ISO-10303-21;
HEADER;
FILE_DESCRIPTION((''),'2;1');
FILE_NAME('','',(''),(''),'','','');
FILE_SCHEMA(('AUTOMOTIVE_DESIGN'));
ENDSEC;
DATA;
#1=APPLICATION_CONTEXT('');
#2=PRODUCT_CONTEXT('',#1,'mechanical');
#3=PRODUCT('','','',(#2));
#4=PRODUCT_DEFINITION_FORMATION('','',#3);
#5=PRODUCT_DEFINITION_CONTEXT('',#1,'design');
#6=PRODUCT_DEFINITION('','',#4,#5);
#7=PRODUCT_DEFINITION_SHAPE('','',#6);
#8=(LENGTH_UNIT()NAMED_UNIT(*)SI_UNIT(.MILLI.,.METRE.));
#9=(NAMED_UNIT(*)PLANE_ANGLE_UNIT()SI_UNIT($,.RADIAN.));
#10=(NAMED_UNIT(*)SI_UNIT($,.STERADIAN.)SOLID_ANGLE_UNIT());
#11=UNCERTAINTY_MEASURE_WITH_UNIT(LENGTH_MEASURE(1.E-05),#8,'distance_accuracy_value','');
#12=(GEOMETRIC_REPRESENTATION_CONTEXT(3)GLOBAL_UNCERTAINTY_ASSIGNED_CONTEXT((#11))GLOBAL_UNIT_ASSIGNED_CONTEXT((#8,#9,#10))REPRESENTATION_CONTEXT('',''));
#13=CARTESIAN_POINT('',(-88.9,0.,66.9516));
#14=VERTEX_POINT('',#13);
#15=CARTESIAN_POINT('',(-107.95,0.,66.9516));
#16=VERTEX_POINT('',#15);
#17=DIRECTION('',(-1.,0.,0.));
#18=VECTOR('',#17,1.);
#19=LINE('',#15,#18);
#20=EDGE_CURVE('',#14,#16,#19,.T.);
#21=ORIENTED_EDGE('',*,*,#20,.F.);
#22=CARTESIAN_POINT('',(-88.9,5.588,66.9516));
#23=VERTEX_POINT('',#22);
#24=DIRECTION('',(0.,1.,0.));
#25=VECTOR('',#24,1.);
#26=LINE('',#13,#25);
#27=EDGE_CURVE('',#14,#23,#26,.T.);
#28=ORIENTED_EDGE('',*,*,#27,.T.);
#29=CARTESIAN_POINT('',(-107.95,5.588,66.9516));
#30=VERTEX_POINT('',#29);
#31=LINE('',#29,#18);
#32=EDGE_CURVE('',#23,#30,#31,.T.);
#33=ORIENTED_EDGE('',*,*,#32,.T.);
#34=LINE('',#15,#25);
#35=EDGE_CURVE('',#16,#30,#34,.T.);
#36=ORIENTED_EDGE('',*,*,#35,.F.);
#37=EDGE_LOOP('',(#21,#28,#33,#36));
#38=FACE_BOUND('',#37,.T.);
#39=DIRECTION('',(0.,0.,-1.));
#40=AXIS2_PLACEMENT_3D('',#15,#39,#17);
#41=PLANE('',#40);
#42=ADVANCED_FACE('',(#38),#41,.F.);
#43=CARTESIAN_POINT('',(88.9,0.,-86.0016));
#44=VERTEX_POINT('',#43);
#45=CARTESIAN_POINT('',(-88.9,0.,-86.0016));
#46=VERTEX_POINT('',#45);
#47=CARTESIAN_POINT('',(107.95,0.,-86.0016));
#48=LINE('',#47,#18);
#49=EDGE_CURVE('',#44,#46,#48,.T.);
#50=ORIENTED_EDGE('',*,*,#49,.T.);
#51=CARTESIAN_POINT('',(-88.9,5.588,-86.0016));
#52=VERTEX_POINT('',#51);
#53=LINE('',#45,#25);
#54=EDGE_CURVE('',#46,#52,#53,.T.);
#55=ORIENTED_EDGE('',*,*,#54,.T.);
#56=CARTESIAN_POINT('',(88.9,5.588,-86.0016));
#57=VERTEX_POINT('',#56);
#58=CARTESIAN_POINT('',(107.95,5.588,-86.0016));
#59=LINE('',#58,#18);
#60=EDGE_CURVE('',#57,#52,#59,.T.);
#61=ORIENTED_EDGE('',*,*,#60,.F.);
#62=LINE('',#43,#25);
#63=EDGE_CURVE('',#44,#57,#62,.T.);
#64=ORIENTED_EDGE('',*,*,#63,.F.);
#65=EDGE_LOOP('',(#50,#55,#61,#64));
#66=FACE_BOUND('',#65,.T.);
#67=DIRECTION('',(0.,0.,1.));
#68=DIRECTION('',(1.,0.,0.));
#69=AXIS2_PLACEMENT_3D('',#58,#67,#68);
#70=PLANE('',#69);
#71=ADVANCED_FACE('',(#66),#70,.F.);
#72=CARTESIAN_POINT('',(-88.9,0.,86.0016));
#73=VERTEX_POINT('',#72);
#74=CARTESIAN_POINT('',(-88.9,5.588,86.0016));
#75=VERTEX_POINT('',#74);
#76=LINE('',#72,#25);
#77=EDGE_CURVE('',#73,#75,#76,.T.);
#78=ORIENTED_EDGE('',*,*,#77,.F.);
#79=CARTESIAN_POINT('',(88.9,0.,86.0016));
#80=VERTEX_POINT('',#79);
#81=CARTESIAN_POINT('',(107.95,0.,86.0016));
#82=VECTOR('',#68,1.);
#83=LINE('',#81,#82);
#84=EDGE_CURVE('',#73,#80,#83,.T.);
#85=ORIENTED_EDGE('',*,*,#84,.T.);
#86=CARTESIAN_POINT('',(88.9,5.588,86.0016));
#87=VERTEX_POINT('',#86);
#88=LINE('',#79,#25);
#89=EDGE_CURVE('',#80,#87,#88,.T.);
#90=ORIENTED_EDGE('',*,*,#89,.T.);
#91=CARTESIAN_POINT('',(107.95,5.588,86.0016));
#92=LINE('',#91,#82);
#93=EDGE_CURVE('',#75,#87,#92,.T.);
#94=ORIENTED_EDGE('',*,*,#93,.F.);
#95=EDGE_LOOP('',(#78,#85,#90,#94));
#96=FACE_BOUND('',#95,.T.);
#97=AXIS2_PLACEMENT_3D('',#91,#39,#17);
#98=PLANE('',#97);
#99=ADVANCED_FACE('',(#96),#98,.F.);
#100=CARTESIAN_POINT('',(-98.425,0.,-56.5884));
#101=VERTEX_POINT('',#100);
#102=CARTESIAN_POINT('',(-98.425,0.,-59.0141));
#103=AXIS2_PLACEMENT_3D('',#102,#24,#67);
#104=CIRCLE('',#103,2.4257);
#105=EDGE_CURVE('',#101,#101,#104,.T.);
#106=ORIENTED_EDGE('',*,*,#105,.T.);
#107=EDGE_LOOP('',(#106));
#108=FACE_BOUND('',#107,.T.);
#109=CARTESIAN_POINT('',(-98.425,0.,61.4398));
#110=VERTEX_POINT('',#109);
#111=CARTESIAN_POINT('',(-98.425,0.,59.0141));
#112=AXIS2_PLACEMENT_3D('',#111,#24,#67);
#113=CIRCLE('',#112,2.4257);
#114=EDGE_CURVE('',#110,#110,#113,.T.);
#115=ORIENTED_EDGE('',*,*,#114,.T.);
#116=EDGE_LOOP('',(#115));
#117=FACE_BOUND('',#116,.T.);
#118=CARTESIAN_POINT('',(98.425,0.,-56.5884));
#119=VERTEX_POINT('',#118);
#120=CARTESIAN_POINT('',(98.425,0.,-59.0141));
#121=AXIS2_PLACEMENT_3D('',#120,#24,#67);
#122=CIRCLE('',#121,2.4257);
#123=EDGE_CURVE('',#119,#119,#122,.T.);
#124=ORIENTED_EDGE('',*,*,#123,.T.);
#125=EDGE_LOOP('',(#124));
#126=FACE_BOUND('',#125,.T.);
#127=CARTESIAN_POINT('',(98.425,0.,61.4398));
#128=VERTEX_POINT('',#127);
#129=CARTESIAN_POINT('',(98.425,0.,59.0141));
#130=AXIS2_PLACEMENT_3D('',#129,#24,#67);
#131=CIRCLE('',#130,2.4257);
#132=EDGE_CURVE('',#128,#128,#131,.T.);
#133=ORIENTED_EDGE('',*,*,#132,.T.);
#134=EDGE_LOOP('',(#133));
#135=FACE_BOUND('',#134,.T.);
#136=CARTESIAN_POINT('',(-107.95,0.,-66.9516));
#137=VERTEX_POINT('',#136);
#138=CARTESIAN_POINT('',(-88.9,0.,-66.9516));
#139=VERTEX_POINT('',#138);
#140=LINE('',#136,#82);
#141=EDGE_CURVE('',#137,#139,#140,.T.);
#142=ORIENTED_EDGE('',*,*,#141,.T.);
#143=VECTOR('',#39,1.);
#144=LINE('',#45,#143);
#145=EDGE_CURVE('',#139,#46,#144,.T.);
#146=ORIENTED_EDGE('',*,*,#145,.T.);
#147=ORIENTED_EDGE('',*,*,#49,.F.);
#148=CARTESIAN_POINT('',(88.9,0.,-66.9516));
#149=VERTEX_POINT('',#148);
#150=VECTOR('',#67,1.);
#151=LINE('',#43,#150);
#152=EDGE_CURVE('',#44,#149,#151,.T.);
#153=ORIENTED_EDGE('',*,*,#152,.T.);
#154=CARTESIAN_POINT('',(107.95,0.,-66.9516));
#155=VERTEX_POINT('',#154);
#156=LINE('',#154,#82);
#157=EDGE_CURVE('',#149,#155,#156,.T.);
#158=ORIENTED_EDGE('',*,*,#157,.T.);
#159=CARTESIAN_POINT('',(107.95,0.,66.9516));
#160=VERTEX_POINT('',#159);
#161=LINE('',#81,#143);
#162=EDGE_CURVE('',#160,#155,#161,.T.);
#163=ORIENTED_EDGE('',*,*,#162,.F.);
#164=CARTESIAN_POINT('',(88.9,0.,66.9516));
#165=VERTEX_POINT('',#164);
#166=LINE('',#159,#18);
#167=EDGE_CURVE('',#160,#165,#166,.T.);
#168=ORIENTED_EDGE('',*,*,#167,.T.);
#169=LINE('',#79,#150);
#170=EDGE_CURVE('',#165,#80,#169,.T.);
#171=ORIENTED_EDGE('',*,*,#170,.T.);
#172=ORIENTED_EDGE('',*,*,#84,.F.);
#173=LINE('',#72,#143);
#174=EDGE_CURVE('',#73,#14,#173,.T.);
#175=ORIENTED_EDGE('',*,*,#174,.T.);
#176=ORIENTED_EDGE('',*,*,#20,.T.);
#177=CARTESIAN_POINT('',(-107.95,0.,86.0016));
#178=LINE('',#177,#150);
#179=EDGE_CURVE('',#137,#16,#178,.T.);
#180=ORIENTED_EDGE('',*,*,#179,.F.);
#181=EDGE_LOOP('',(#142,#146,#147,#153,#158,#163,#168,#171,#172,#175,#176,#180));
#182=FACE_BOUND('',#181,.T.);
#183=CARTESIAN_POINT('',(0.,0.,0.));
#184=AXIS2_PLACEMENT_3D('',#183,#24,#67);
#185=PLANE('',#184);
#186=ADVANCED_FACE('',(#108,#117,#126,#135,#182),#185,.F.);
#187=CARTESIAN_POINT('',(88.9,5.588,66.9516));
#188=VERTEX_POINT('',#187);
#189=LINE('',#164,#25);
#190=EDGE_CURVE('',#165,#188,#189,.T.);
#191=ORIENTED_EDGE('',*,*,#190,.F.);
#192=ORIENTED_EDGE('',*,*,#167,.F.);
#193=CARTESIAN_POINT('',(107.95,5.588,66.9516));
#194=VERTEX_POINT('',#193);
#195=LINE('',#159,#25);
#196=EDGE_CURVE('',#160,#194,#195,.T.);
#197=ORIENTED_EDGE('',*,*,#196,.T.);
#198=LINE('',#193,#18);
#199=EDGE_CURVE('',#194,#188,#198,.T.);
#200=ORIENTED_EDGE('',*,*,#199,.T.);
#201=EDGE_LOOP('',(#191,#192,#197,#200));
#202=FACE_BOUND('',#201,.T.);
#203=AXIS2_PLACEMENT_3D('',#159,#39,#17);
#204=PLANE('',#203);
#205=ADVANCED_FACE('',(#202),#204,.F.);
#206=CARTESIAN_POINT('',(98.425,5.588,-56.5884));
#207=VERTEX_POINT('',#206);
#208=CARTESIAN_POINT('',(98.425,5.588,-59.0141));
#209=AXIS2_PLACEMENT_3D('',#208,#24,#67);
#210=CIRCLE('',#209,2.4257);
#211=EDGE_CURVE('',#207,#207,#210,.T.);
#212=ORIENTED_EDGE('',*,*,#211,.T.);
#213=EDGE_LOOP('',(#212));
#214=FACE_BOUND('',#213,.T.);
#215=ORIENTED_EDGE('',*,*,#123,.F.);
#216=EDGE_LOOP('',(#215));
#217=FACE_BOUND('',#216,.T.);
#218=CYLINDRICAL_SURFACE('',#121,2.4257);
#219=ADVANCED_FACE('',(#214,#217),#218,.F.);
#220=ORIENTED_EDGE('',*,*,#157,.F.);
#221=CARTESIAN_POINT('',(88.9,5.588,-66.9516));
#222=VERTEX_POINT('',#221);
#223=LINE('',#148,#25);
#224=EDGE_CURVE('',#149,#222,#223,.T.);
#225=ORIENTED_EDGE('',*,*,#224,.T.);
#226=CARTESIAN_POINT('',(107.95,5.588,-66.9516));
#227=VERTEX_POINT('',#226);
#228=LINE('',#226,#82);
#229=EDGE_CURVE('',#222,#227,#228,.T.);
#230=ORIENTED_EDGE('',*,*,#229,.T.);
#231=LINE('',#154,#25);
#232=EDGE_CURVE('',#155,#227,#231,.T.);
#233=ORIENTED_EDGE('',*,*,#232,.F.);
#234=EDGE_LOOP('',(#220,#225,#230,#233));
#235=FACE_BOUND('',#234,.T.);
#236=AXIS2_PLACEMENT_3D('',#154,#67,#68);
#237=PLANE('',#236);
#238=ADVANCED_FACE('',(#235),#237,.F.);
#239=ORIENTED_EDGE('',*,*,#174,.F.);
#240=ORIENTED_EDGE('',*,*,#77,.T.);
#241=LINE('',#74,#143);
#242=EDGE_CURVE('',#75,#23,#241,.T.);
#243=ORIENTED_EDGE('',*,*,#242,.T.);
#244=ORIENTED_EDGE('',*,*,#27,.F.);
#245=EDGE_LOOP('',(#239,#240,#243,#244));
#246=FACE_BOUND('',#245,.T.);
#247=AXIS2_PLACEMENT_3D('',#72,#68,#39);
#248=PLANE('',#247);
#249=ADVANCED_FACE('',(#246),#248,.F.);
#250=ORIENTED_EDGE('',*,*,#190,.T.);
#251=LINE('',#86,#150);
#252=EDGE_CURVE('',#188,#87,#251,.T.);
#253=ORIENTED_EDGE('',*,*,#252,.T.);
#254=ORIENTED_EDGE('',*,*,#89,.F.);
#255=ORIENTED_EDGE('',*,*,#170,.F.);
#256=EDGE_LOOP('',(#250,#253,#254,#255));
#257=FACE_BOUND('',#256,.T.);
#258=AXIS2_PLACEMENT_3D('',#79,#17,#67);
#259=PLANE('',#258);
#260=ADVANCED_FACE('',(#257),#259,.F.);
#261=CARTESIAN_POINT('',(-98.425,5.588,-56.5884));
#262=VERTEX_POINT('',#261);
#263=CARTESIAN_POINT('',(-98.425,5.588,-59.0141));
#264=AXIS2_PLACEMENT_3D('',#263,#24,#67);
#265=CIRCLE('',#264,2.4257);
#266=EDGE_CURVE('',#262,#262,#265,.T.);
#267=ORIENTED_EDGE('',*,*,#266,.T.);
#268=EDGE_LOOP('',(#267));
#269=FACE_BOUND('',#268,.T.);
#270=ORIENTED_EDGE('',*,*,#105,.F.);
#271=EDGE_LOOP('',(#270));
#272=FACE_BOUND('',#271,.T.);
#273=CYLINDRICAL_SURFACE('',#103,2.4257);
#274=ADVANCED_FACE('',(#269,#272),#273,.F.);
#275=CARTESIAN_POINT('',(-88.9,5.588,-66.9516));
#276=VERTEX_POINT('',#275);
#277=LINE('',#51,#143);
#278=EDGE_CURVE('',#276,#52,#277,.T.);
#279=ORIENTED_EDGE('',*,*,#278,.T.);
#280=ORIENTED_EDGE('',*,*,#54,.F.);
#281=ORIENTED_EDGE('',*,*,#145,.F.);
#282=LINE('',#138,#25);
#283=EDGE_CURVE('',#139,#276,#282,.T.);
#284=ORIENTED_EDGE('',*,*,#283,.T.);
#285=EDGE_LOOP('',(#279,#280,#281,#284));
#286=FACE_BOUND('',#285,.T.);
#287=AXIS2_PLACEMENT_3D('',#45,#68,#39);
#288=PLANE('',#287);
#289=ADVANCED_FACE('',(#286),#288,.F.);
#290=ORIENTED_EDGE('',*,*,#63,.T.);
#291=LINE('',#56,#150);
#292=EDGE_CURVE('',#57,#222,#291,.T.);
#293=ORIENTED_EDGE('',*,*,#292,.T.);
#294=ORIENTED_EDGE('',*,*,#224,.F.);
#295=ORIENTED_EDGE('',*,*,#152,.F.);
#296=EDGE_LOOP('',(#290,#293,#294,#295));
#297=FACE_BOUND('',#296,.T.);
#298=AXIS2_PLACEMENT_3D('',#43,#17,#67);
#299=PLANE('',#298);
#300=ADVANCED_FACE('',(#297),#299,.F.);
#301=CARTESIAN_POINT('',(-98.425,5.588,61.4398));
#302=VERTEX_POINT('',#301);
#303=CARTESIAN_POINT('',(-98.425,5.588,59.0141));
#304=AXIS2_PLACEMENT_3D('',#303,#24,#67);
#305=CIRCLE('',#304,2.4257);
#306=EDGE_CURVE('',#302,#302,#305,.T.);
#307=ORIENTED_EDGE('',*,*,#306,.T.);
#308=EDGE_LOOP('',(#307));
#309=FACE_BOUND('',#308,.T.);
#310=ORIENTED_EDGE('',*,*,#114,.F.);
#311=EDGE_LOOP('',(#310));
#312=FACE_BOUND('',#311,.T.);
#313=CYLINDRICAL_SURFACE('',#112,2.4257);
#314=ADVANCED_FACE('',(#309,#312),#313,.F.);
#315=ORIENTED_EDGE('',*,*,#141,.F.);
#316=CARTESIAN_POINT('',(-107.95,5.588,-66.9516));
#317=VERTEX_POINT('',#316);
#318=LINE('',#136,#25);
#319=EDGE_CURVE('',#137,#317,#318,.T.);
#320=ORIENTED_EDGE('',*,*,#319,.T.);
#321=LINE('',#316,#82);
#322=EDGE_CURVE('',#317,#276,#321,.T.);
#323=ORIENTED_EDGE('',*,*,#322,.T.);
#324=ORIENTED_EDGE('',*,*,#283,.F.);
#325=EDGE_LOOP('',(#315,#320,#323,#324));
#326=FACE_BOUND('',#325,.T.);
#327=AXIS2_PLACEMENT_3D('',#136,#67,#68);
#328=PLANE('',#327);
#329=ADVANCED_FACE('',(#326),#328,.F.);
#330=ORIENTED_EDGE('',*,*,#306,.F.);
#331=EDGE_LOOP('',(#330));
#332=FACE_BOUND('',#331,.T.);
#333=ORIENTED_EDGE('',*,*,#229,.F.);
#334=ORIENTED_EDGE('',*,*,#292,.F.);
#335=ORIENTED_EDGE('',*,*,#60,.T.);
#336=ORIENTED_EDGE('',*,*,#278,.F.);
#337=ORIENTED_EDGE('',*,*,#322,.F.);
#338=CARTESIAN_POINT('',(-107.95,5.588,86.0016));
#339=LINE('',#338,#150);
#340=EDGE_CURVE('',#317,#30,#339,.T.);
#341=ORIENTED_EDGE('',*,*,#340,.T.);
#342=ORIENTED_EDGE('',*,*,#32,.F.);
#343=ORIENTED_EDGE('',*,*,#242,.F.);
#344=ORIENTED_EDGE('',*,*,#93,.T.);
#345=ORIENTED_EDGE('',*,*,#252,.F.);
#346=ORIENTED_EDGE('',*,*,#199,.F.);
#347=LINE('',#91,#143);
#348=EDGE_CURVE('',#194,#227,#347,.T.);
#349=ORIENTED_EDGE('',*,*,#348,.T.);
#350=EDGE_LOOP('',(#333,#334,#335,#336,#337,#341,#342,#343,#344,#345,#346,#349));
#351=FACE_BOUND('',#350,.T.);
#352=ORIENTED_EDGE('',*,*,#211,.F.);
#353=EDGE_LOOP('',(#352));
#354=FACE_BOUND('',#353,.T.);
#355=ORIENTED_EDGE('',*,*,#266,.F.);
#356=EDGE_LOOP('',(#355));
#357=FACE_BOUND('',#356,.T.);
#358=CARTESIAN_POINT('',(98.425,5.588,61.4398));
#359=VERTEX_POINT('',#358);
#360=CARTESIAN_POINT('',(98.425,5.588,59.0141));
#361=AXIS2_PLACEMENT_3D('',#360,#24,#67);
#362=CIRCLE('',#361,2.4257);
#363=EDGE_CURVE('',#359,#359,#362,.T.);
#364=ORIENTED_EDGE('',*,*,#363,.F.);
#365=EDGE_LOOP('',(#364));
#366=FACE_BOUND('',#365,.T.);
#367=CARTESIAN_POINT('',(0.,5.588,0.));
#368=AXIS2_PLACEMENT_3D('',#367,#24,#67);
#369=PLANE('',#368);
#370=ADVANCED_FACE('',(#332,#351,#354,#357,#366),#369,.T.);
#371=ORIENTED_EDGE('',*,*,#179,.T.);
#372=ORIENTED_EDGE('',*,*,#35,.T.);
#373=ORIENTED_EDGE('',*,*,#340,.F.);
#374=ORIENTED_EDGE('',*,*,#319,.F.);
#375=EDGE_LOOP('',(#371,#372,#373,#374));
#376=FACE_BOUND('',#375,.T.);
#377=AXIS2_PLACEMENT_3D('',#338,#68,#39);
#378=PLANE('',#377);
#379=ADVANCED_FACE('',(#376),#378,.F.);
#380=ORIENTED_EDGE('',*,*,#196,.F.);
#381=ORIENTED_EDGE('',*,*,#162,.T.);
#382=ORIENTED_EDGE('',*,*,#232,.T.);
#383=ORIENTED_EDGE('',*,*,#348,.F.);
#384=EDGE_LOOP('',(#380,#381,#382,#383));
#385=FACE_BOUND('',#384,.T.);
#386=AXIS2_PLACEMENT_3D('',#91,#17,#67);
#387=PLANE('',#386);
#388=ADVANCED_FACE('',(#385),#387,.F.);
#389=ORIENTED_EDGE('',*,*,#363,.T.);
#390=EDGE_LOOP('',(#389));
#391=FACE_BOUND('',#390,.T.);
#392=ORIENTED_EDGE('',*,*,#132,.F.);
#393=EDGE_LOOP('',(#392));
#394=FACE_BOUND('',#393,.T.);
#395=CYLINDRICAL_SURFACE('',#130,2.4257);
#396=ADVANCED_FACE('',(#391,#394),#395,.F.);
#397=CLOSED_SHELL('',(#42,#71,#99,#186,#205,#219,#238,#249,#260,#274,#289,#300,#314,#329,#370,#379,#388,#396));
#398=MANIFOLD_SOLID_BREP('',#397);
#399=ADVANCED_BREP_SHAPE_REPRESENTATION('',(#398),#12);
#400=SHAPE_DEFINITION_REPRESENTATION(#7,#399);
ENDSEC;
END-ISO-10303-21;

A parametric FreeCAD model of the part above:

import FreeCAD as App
import Part
import Sketcher

V = App.Vector
Q = App.Units.Quantity

doc = App.newDocument("Part")
params = doc.addObject("Spreadsheet::Sheet", "Params")
for row, (alias, value) in enumerate([
    ("sketch1_width", "8.5 in"),
    ("pad1_length", "0.22 in"),
    ("sketch2_width", "0.75 in"),
    ("sketch3_diameter", "0.191 in"),
], start=1):
    params.set(f"A{row}", alias)
    params.set(f"B{row}", "=" + value)
    params.setAlias(f"B{row}", alias)

body = doc.addObject("PartDesign::Body", "Body")

sketch1 = body.newObject("Sketcher::SketchObject", "Sketch")
sketch1.AttachmentSupport = (doc.getObject("XZ_Plane"), [""])
sketch1.MapMode = "FlatFace"
sketch1.addGeometry([
    Part.LineSegment(V(-108, -86, 0), V(-108, 86, 0)),
    Part.LineSegment(V(-108, 86, 0), V(108, 86, 0)),
    Part.LineSegment(V(108, 86, 0), V(108, -86, 0)),
    Part.LineSegment(V(108, -86, 0), V(-108, -86, 0)),
], False)
sketch1.addConstraint([
    Sketcher.Constraint("Coincident", 0, 2, 1, 1),
    Sketcher.Constraint("Coincident", 1, 2, 2, 1),
    Sketcher.Constraint("Coincident", 2, 2, 3, 1),
    Sketcher.Constraint("Coincident", 3, 2, 0, 1),
    Sketcher.Constraint("Vertical", 0),
    Sketcher.Constraint("Horizontal", 1),
    Sketcher.Constraint("Vertical", 2),
    Sketcher.Constraint("Horizontal", 3),
    Sketcher.Constraint("Symmetric", 0, 2, 2, 2, -1, 1),
    Sketcher.Constraint("DistanceX", 1, 1, 1, 2, Q("8.5 in")),
    Sketcher.Constraint("DistanceY", 0, 1, 0, 2, 172.0032),
])
sketch1.setExpression("Constraints[9]", "Params.sketch1_width")
pad1 = body.newObject("PartDesign::Pad", "Pad")
pad1.Profile = sketch1
pad1.setExpression("Length", "Params.pad1_length")
pad1.Reversed = True

sketch2 = body.newObject("Sketcher::SketchObject", "Sketch001")
sketch2.AttachmentSupport = (doc.getObject("XZ_Plane"), [""])
sketch2.MapMode = "FlatFace"
sketch2.AttachmentOffset = App.Placement(V(0, 0, -0.22 * 25.4), App.Rotation())
sketch2.addGeometry([
    Part.LineSegment(V(-108, -86, 0), V(-108, -67, 0)),
    Part.LineSegment(V(-108, -67, 0), V(-89, -67, 0)),
    Part.LineSegment(V(-89, -67, 0), V(-89, -86, 0)),
    Part.LineSegment(V(-89, -86, 0), V(-108, -86, 0)),
    Part.LineSegment(V(89, -86, 0), V(89, -67, 0)),
    Part.LineSegment(V(89, -67, 0), V(108, -67, 0)),
    Part.LineSegment(V(108, -67, 0), V(108, -86, 0)),
    Part.LineSegment(V(108, -86, 0), V(89, -86, 0)),
    Part.LineSegment(V(89, 67, 0), V(89, 86, 0)),
    Part.LineSegment(V(89, 86, 0), V(108, 86, 0)),
    Part.LineSegment(V(108, 86, 0), V(108, 67, 0)),
    Part.LineSegment(V(108, 67, 0), V(89, 67, 0)),
    Part.LineSegment(V(-108, 67, 0), V(-108, 86, 0)),
    Part.LineSegment(V(-108, 86, 0), V(-89, 86, 0)),
    Part.LineSegment(V(-89, 86, 0), V(-89, 67, 0)),
    Part.LineSegment(V(-89, 67, 0), V(-108, 67, 0)),
], False)
sketch2.addConstraint([
    Sketcher.Constraint("Coincident", 0, 2, 1, 1),
    Sketcher.Constraint("Coincident", 1, 2, 2, 1),
    Sketcher.Constraint("Coincident", 2, 2, 3, 1),
    Sketcher.Constraint("Coincident", 3, 2, 0, 1),
    Sketcher.Constraint("Coincident", 4, 2, 5, 1),
    Sketcher.Constraint("Coincident", 5, 2, 6, 1),
    Sketcher.Constraint("Coincident", 6, 2, 7, 1),
    Sketcher.Constraint("Coincident", 7, 2, 4, 1),
    Sketcher.Constraint("Coincident", 8, 2, 9, 1),
    Sketcher.Constraint("Coincident", 9, 2, 10, 1),
    Sketcher.Constraint("Coincident", 10, 2, 11, 1),
    Sketcher.Constraint("Coincident", 11, 2, 8, 1),
    Sketcher.Constraint("Coincident", 12, 2, 13, 1),
    Sketcher.Constraint("Coincident", 13, 2, 14, 1),
    Sketcher.Constraint("Coincident", 14, 2, 15, 1),
    Sketcher.Constraint("Coincident", 15, 2, 12, 1),
    Sketcher.Constraint("Vertical", 0),
    Sketcher.Constraint("Horizontal", 1),
    Sketcher.Constraint("Vertical", 2),
    Sketcher.Constraint("Horizontal", 3),
    Sketcher.Constraint("Vertical", 4),
    Sketcher.Constraint("Horizontal", 5),
    Sketcher.Constraint("Vertical", 6),
    Sketcher.Constraint("Horizontal", 7),
    Sketcher.Constraint("Vertical", 8),
    Sketcher.Constraint("Horizontal", 9),
    Sketcher.Constraint("Vertical", 10),
    Sketcher.Constraint("Horizontal", 11),
    Sketcher.Constraint("Vertical", 12),
    Sketcher.Constraint("Horizontal", 13),
    Sketcher.Constraint("Vertical", 14),
    Sketcher.Constraint("Horizontal", 15),
    Sketcher.Constraint("Symmetric", 2, 2, 8, 2, -1, 1),
    Sketcher.Constraint("Symmetric", 0, 2, 10, 2, -1, 1),
    Sketcher.Constraint("Symmetric", 6, 2, 12, 2, -1, 1),
    Sketcher.Constraint("Symmetric", 4, 2, 14, 2, -1, 1),
    Sketcher.Constraint("Symmetric", 1, 2, 4, 2, -2),
    Sketcher.Constraint("Symmetric", 3, 2, 6, 2, -2),
    Sketcher.Constraint("Equal", 15, 0),
    Sketcher.Constraint("DistanceX", 1, 2, 4, 2, Q("7 in")),
    Sketcher.Constraint("DistanceX", 1, 1, 1, 2, Q("0.75 in")),
    Sketcher.Constraint("DistanceY", 0, 2, -1, 1, 66.9516),
])
sketch2.setExpression("Constraints[40]", "Params.sketch2_width")
pocket1 = body.newObject("PartDesign::Pocket", "Pocket")
pocket1.Profile = sketch2
pocket1.Type = "ThroughAll"
pocket1.Reversed = True

sketch3 = body.newObject("Sketcher::SketchObject", "Sketch002")
sketch3.AttachmentSupport = (doc.getObject("XZ_Plane"), [""])
sketch3.MapMode = "FlatFace"
sketch3.AttachmentOffset = App.Placement(V(0, 0, -0.22 * 25.4), App.Rotation())
sketch3.addGeometry([
    Part.Circle(V(-98.4, -59, 0), V(0, 0, 1), 2.4),
    Part.Circle(V(-98.4, 59, 0), V(0, 0, 1), 2.4),
    Part.Circle(V(98.4, 59, 0), V(0, 0, 1), 2.4),
    Part.Circle(V(98.4, -59, 0), V(0, 0, 1), 2.4),
], False)
sketch3.addConstraint([
    Sketcher.Constraint("Equal", 0, 1),
    Sketcher.Constraint("Equal", 1, 2),
    Sketcher.Constraint("Equal", 2, 3),
    Sketcher.Constraint("Symmetric", 0, 3, 2, 3, -1, 1),
    Sketcher.Constraint("Symmetric", 1, 3, 3, 3, -1, 1),
    Sketcher.Constraint("Symmetric", 1, 3, 2, 3, -2),
    Sketcher.Constraint("Diameter", 0, Q("0.191 in")),
    Sketcher.Constraint("DistanceX", 1, 3, 2, 3, Q("7.75 in")),
    Sketcher.Constraint("DistanceY", 0, 3, -1, 1, 59.0141),
])
sketch3.setExpression("Constraints[6]", "Params.sketch3_diameter")
pocket2 = body.newObject("PartDesign::Pocket", "Pocket001")
pocket2.Profile = sketch3
pocket2.Type = "ThroughAll"
pocket2.Reversed = True

doc.recompute()
